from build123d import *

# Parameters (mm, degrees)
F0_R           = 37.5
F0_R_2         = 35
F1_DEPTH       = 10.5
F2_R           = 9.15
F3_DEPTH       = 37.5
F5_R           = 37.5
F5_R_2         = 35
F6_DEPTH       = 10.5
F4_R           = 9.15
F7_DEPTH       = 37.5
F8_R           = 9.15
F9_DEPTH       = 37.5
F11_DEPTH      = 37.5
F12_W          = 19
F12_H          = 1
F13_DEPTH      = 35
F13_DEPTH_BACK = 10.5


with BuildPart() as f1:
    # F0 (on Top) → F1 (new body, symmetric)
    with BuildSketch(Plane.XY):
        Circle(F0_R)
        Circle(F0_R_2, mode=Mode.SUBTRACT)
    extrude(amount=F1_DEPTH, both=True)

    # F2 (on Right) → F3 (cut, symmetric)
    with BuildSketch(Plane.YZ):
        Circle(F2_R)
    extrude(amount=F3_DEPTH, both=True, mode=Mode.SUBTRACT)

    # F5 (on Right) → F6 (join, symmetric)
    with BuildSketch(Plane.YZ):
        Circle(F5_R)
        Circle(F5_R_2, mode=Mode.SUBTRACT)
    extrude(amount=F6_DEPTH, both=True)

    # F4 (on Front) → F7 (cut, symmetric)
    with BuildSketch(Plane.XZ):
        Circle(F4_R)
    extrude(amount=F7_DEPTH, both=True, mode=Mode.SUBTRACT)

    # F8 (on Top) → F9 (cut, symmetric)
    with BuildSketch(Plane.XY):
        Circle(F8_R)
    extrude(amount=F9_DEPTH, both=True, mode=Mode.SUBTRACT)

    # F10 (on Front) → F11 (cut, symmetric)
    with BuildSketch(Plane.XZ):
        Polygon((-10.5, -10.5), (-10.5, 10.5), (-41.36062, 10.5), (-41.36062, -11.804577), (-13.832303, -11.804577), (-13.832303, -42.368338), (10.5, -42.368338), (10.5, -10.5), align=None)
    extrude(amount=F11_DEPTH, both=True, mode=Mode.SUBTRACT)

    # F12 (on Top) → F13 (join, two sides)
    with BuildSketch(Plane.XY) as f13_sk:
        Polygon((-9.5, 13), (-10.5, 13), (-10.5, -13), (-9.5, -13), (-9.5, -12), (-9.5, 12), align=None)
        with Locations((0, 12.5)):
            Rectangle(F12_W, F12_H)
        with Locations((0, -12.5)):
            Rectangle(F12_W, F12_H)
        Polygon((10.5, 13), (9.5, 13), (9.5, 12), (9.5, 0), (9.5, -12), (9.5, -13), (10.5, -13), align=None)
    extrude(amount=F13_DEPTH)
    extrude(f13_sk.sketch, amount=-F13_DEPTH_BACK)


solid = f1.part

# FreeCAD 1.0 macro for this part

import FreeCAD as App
import Part
import Sketcher

V = App.Vector


def add_polygon(sketch, points):
    """Adds a closed chain of lines whose ends are joined by coincident constraints."""
    first, n = sketch.GeometryCount, len(points)
    for a, b in zip(points, points[1:] + points[:1]):
        sketch.addGeometry(Part.LineSegment(App.Vector(*a, 0), App.Vector(*b, 0)), False)
    for i in range(n):
        sketch.addConstraint(Sketcher.Constraint("Coincident", first + i, 2, first + (i + 1) % n, 1))

doc = App.newDocument("Part")
body = doc.addObject("PartDesign::Body", "Body")

sketch1 = body.newObject("Sketcher::SketchObject", "Sketch")
sketch1.AttachmentSupport = (doc.getObject("XY_Plane"), [""])
sketch1.MapMode = "FlatFace"
sketch1.addGeometry([
    Part.Circle(V(0, 0, 0), V(0, 0, 1), 38),
    Part.Circle(V(0, 0, 0), V(0, 0, 1), 35),
], False)
sketch1.addConstraint([
    Sketcher.Constraint("Coincident", 0, 3, -1, 1),
    Sketcher.Constraint("Coincident", 1, 3, -1, 1),
    Sketcher.Constraint("Diameter", 0, 75.0),
    Sketcher.Constraint("Diameter", 1, 70.0),
])
pad1 = body.newObject("PartDesign::Pad", "Pad")
pad1.Profile = sketch1
pad1.Length = 21
pad1.Midplane = True

sketch2 = body.newObject("Sketcher::SketchObject", "Sketch001")
sketch2.AttachmentSupport = (doc.getObject("YZ_Plane"), [""])
sketch2.MapMode = "FlatFace"
sketch2.addGeometry(Part.Circle(V(0, 0, 0), V(0, 0, 1), 9), False)
sketch2.addConstraint([
    Sketcher.Constraint("Coincident", 0, 3, -1, 1),
    Sketcher.Constraint("Diameter", 0, 18.3),
])
pocket1 = body.newObject("PartDesign::Pocket", "Pocket")
pocket1.Profile = sketch2
pocket1.Length = 75
pocket1.Midplane = True

sketch3 = body.newObject("Sketcher::SketchObject", "Sketch002")
sketch3.AttachmentSupport = (doc.getObject("YZ_Plane"), [""])
sketch3.MapMode = "FlatFace"
sketch3.addGeometry([
    Part.Circle(V(0, 0, 0), V(0, 0, 1), 38),
    Part.Circle(V(0, 0, 0), V(0, 0, 1), 35),
], False)
sketch3.addConstraint([
    Sketcher.Constraint("Coincident", 0, 3, -1, 1),
    Sketcher.Constraint("Coincident", 1, 3, -1, 1),
    Sketcher.Constraint("Diameter", 0, 75.0),
    Sketcher.Constraint("Diameter", 1, 70.0),
])
pad2 = body.newObject("PartDesign::Pad", "Pad001")
pad2.Profile = sketch3
pad2.Length = 21
pad2.Midplane = True

sketch4 = body.newObject("Sketcher::SketchObject", "Sketch003")
sketch4.AttachmentSupport = (doc.getObject("XZ_Plane"), [""])
sketch4.MapMode = "FlatFace"
sketch4.addGeometry(Part.Circle(V(0, 0, 0), V(0, 0, 1), 9), False)
sketch4.addConstraint([
    Sketcher.Constraint("Coincident", 0, 3, -1, 1),
    Sketcher.Constraint("Diameter", 0, 18.3),
])
pocket2 = body.newObject("PartDesign::Pocket", "Pocket001")
pocket2.Profile = sketch4
pocket2.Length = 75
pocket2.Midplane = True

sketch5 = body.newObject("Sketcher::SketchObject", "Sketch004")
sketch5.AttachmentSupport = (doc.getObject("XY_Plane"), [""])
sketch5.MapMode = "FlatFace"
sketch5.addGeometry(Part.Circle(V(0, 0, 0), V(0, 0, 1), 9), False)
sketch5.addConstraint([
    Sketcher.Constraint("Coincident", 0, 3, -1, 1),
    Sketcher.Constraint("Diameter", 0, 18.3),
])
pocket3 = body.newObject("PartDesign::Pocket", "Pocket002")
pocket3.Profile = sketch5
pocket3.Length = 75
pocket3.Midplane = True

sketch6 = body.newObject("Sketcher::SketchObject", "Sketch005")
sketch6.AttachmentSupport = (doc.getObject("XZ_Plane"), [""])
sketch6.MapMode = "FlatFace"
add_polygon(sketch6, [(-10, -10), (-10, 10), (-41, 10), (-41, -12), (-14, -12), (-14, -42), (10, -42), (10, -10)])
sketch6.addConstraint([
    Sketcher.Constraint("Vertical", 0),
    Sketcher.Constraint("Horizontal", 1),
    Sketcher.Constraint("Vertical", 2),
    Sketcher.Constraint("Horizontal", 3),
    Sketcher.Constraint("Vertical", 4),
    Sketcher.Constraint("Horizontal", 5),
    Sketcher.Constraint("Vertical", 6),
    Sketcher.Constraint("Horizontal", 7),
    Sketcher.Constraint("Symmetric", 0, 2, 6, 2, -1, 1),
    Sketcher.Constraint("Equal", 7, 0),
    Sketcher.Constraint("DistanceX", 7, 2, 7, 1, 21.0),
    Sketcher.Constraint("DistanceX", 1, 2, 1, 1, 30.86062),
    Sketcher.Constraint("DistanceY", 4, 2, 4, 1, 30.563761),
    Sketcher.Constraint("DistanceY", 6, 1, 6, 2, 31.868338),
    Sketcher.Constraint("DistanceX", 3, 1, 3, 2, 27.528317),
])
pocket4 = body.newObject("PartDesign::Pocket", "Pocket003")
pocket4.Profile = sketch6
pocket4.Length = 75
pocket4.Midplane = True

sketch7 = body.newObject("Sketcher::SketchObject", "Sketch006")
sketch7.AttachmentSupport = (doc.getObject("XY_Plane"), [""])
sketch7.MapMode = "FlatFace"
add_polygon(sketch7, [(-10, 13), (-10, -13), (10, -13), (10, 13)])
add_polygon(sketch7, [(10, -12), (-10, -12), (-10, 12), (10, 12)])
sketch7.addConstraint([
    Sketcher.Constraint("Vertical", 0),
    Sketcher.Constraint("Horizontal", 1),
    Sketcher.Constraint("Vertical", 2),
    Sketcher.Constraint("Horizontal", 3),
    Sketcher.Constraint("Horizontal", 4),
    Sketcher.Constraint("Vertical", 5),
    Sketcher.Constraint("Horizontal", 6),
    Sketcher.Constraint("Vertical", 7),
    Sketcher.Constraint("Symmetric", 0, 2, 2, 2, -1, 1),
    Sketcher.Constraint("Symmetric", 4, 2, 6, 2, -1, 1),
    Sketcher.Constraint("DistanceX", 1, 1, 1, 2, 21.0),
    Sketcher.Constraint("DistanceX", 4, 2, 4, 1, 19.0),
    Sketcher.Constraint("DistanceY", 0, 2, 0, 1, 26.0),
    Sketcher.Constraint("DistanceY", 5, 1, 5, 2, 24.0),
])
pad3 = body.newObject("PartDesign::Pad", "Pad002")
pad3.Profile = sketch7
pad3.Type = "TwoLengths"
pad3.Length = 35
pad3.Length2 = 10.5

doc.recompute()
